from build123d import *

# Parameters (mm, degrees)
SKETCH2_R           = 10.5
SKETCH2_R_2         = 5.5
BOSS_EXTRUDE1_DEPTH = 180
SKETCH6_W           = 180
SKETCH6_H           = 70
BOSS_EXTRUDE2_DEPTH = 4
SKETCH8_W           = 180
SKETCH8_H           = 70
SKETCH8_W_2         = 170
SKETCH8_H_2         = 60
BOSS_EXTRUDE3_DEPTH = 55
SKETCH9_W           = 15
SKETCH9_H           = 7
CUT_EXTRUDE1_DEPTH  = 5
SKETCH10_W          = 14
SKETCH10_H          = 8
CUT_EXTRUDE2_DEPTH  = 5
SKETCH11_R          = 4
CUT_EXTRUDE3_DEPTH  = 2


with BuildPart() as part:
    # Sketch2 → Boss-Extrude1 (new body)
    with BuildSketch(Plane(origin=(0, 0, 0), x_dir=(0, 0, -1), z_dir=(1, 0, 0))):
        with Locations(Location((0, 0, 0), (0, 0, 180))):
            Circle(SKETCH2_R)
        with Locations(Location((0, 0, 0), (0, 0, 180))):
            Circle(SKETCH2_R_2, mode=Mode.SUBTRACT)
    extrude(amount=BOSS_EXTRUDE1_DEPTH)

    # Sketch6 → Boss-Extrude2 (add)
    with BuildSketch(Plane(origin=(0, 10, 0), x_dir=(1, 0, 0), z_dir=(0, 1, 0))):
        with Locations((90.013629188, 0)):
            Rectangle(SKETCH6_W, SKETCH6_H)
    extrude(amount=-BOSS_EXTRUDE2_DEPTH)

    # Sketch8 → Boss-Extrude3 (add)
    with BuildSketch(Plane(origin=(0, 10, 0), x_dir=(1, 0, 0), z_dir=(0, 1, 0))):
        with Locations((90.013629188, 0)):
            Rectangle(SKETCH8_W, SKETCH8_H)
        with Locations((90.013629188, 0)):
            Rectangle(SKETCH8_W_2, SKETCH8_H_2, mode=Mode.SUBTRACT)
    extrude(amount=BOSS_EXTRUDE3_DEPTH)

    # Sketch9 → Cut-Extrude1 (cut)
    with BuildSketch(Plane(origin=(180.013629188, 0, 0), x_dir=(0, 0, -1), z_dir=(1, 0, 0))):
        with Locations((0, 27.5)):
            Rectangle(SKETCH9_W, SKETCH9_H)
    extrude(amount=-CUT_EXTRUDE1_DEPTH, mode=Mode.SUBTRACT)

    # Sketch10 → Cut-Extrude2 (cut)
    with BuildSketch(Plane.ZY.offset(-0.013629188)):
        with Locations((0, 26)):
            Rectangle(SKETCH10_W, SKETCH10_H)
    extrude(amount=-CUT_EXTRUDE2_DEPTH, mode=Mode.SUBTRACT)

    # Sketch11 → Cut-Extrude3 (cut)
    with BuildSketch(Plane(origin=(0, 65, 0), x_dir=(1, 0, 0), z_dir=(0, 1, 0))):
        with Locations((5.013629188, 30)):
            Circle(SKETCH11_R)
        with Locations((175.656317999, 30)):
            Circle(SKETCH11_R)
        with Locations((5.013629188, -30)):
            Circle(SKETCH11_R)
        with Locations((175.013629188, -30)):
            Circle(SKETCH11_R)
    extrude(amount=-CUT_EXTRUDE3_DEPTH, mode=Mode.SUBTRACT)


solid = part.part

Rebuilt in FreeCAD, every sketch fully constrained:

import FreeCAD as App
import Part
import Sketcher


def add_polygon(sketch, points):
    """Adds a closed chain of lines whose ends are joined by coincident constraints."""
    first, n = sketch.GeometryCount, len(points)
    for a, b in zip(points, points[1:] + points[:1]):
        sketch.addGeometry(Part.LineSegment(App.Vector(*a, 0), App.Vector(*b, 0)), False)
    for i in range(n):
        sketch.addConstraint(Sketcher.Constraint("Coincident", first + i, 2, first + (i + 1) % n, 1))

doc = App.newDocument("Part")
body = doc.addObject("PartDesign::Body", "Body")

sketch1 = body.newObject("Sketcher::SketchObject", "Sketch")
sketch1.AttachmentSupport = (doc.getObject("YZ_Plane"), [""])
sketch1.MapMode = "FlatFace"
sketch1.addGeometry([
    Part.Circle(App.Vector(0, 0, 0), App.Vector(0, 0, 1), 10),
    Part.Circle(App.Vector(0, 0, 0), App.Vector(0, 0, 1), 6),
], False)
sketch1.addConstraint([
    Sketcher.Constraint("Coincident", 0, 3, -1, 1),
    Sketcher.Constraint("Coincident", 1, 3, -1, 1),
    Sketcher.Constraint("Diameter", 0, 21.0),
    Sketcher.Constraint("Diameter", 1, 11.0),
])
pad1 = body.newObject("PartDesign::Pad", "Pad")
pad1.Profile = sketch1
pad1.Length = 180

sketch2 = body.newObject("Sketcher::SketchObject", "Sketch001")
sketch2.AttachmentSupport = (doc.getObject("XZ_Plane"), [""])
sketch2.MapMode = "FlatFace"
sketch2.AttachmentOffset = App.Placement(App.Vector(0, 0, -10), App.Rotation())
add_polygon(sketch2, [(0, -35), (0, 35), (180, 35), (180, -35)])
sketch2.addConstraint([
    Sketcher.Constraint("Vertical", 0),
    Sketcher.Constraint("Horizontal", 1),
    Sketcher.Constraint("Vertical", 2),
    Sketcher.Constraint("Horizontal", 3),
    Sketcher.Constraint("DistanceX", 1, 1, 1, 2, 180.0),
    Sketcher.Constraint("DistanceY", 0, 1, 0, 2, 70.0),
    Sketcher.Constraint("DistanceY", -1, 1, 0, 2, 35.0),
    Sketcher.Constraint("DistanceX", -1, 1, 0, 2, 0.013629),
])
pad2 = body.newObject("PartDesign::Pad", "Pad001")
pad2.Profile = sketch2
pad2.Length = 4

sketch3 = body.newObject("Sketcher::SketchObject", "Sketch002")
sketch3.AttachmentSupport = (doc.getObject("XZ_Plane"), [""])
sketch3.MapMode = "FlatFace"
sketch3.AttachmentOffset = App.Placement(App.Vector(0, 0, -10), App.Rotation())
add_polygon(sketch3, [(0, -35), (0, 35), (180, 35), (180, -35)])
add_polygon(sketch3, [(175, 30), (5, 30), (5, -30), (175, -30)])
sketch3.addConstraint([
    Sketcher.Constraint("Vertical", 0),
    Sketcher.Constraint("Horizontal", 1),
    Sketcher.Constraint("Vertical", 2),
    Sketcher.Constraint("Horizontal", 3),
    Sketcher.Constraint("Horizontal", 4),
    Sketcher.Constraint("Vertical", 5),
    Sketcher.Constraint("Horizontal", 6),
    Sketcher.Constraint("Vertical", 7),
    Sketcher.Constraint("DistanceX", 1, 1, 1, 2, 180.0),
    Sketcher.Constraint("DistanceX", 4, 2, 4, 1, 170.0),
    Sketcher.Constraint("DistanceY", 0, 1, 0, 2, 70.0),
    Sketcher.Constraint("DistanceY", 5, 2, 5, 1, 60.0),
    Sketcher.Constraint("DistanceY", -1, 1, 0, 2, 35.0),
    Sketcher.Constraint("DistanceY", -1, 1, 4, 2, 30.0),
    Sketcher.Constraint("DistanceX", 0, 2, 4, 2, 5.0),
    Sketcher.Constraint("DistanceX", -1, 1, 0, 2, 0.013629),
])
pad3 = body.newObject("PartDesign::Pad", "Pad002")
pad3.Profile = sketch3
pad3.Length = 55
pad3.Reversed = True

sketch4 = body.newObject("Sketcher::SketchObject", "Sketch003")
sketch4.AttachmentSupport = (doc.getObject("YZ_Plane"), [""])
sketch4.MapMode = "FlatFace"
sketch4.AttachmentOffset = App.Placement(App.Vector(0, 0, 180.013629), App.Rotation())
add_polygon(sketch4, [(31, 8), (24, 8), (24, -8), (31, -8)])
sketch4.addConstraint([
    Sketcher.Constraint("Horizontal", 0),
    Sketcher.Constraint("Vertical", 1),
    Sketcher.Constraint("Horizontal", 2),
    Sketcher.Constraint("Vertical", 3),
    Sketcher.Constraint("DistanceX", 0, 2, 0, 1, 7.0),
    Sketcher.Constraint("DistanceY", 1, 2, 1, 1, 15.0),
    Sketcher.Constraint("DistanceX", -1, 1, 0, 2, 24.0),
    Sketcher.Constraint("DistanceY", -1, 1, 0, 2, 7.5),
])
pocket1 = body.newObject("PartDesign::Pocket", "Pocket")
pocket1.Profile = sketch4
pocket1.Length = 5

sketch5 = body.newObject("Sketcher::SketchObject", "Sketch004")
sketch5.AttachmentSupport = (doc.getObject("YZ_Plane"), [""])
sketch5.MapMode = "FlatFace"
sketch5.AttachmentOffset = App.Placement(App.Vector(0, 0, 0.013629), App.Rotation())
add_polygon(sketch5, [(30, -7), (22, -7), (22, 7), (30, 7)])
sketch5.addConstraint([
    Sketcher.Constraint("Horizontal", 0),
    Sketcher.Constraint("Vertical", 1),
    Sketcher.Constraint("Horizontal", 2),
    Sketcher.Constraint("Vertical", 3),
    Sketcher.Constraint("DistanceX", 0, 2, 0, 1, 8.0),
    Sketcher.Constraint("DistanceY", 1, 1, 1, 2, 14.0),
    Sketcher.Constraint("DistanceX", -1, 1, 0, 2, 22.0),
    Sketcher.Constraint("DistanceY", 0, 2, -1, 1, 7.0),
])
pocket2 = body.newObject("PartDesign::Pocket", "Pocket001")
pocket2.Profile = sketch5
pocket2.Length = 5
pocket2.Reversed = True

sketch6 = body.newObject("Sketcher::SketchObject", "Sketch005")
sketch6.AttachmentSupport = (doc.getObject("XZ_Plane"), [""])
sketch6.MapMode = "FlatFace"
sketch6.AttachmentOffset = App.Placement(App.Vector(0, 0, -65), App.Rotation())
sketch6.addGeometry([
    Part.Circle(App.Vector(5, -30, 0), App.Vector(0, 0, 1), 4),
    Part.Circle(App.Vector(175.7, -30, 0), App.Vector(0, 0, 1), 4),
    Part.Circle(App.Vector(5, 30, 0), App.Vector(0, 0, 1), 4),
    Part.Circle(App.Vector(175, 30, 0), App.Vector(0, 0, 1), 4),
], False)
sketch6.addConstraint([
    Sketcher.Constraint("Equal", 0, 1),
    Sketcher.Constraint("Equal", 1, 2),
    Sketcher.Constraint("Equal", 2, 3),
    Sketcher.Constraint("Symmetric", 0, 3, 2, 3, -1),
    Sketcher.Constraint("Horizontal", 0, 3, 1, 3),
    Sketcher.Constraint("Horizontal", 2, 3, 3, 3),
    Sketcher.Constraint("Diameter", 0, 8.0),
    Sketcher.Constraint("DistanceY", 0, 3, -1, 1, 30.0),
    Sketcher.Constraint("DistanceX", 2, 3, 3, 3, 170.0),
    Sketcher.Constraint("DistanceX", -1, 1, 0, 3, 5.013629),
    Sketcher.Constraint("DistanceX", 0, 3, 1, 3, 170.642689),
])
pocket3 = body.newObject("PartDesign::Pocket", "Pocket002")
pocket3.Profile = sketch6
pocket3.Length = 2
pocket3.Reversed = True

doc.recompute()
